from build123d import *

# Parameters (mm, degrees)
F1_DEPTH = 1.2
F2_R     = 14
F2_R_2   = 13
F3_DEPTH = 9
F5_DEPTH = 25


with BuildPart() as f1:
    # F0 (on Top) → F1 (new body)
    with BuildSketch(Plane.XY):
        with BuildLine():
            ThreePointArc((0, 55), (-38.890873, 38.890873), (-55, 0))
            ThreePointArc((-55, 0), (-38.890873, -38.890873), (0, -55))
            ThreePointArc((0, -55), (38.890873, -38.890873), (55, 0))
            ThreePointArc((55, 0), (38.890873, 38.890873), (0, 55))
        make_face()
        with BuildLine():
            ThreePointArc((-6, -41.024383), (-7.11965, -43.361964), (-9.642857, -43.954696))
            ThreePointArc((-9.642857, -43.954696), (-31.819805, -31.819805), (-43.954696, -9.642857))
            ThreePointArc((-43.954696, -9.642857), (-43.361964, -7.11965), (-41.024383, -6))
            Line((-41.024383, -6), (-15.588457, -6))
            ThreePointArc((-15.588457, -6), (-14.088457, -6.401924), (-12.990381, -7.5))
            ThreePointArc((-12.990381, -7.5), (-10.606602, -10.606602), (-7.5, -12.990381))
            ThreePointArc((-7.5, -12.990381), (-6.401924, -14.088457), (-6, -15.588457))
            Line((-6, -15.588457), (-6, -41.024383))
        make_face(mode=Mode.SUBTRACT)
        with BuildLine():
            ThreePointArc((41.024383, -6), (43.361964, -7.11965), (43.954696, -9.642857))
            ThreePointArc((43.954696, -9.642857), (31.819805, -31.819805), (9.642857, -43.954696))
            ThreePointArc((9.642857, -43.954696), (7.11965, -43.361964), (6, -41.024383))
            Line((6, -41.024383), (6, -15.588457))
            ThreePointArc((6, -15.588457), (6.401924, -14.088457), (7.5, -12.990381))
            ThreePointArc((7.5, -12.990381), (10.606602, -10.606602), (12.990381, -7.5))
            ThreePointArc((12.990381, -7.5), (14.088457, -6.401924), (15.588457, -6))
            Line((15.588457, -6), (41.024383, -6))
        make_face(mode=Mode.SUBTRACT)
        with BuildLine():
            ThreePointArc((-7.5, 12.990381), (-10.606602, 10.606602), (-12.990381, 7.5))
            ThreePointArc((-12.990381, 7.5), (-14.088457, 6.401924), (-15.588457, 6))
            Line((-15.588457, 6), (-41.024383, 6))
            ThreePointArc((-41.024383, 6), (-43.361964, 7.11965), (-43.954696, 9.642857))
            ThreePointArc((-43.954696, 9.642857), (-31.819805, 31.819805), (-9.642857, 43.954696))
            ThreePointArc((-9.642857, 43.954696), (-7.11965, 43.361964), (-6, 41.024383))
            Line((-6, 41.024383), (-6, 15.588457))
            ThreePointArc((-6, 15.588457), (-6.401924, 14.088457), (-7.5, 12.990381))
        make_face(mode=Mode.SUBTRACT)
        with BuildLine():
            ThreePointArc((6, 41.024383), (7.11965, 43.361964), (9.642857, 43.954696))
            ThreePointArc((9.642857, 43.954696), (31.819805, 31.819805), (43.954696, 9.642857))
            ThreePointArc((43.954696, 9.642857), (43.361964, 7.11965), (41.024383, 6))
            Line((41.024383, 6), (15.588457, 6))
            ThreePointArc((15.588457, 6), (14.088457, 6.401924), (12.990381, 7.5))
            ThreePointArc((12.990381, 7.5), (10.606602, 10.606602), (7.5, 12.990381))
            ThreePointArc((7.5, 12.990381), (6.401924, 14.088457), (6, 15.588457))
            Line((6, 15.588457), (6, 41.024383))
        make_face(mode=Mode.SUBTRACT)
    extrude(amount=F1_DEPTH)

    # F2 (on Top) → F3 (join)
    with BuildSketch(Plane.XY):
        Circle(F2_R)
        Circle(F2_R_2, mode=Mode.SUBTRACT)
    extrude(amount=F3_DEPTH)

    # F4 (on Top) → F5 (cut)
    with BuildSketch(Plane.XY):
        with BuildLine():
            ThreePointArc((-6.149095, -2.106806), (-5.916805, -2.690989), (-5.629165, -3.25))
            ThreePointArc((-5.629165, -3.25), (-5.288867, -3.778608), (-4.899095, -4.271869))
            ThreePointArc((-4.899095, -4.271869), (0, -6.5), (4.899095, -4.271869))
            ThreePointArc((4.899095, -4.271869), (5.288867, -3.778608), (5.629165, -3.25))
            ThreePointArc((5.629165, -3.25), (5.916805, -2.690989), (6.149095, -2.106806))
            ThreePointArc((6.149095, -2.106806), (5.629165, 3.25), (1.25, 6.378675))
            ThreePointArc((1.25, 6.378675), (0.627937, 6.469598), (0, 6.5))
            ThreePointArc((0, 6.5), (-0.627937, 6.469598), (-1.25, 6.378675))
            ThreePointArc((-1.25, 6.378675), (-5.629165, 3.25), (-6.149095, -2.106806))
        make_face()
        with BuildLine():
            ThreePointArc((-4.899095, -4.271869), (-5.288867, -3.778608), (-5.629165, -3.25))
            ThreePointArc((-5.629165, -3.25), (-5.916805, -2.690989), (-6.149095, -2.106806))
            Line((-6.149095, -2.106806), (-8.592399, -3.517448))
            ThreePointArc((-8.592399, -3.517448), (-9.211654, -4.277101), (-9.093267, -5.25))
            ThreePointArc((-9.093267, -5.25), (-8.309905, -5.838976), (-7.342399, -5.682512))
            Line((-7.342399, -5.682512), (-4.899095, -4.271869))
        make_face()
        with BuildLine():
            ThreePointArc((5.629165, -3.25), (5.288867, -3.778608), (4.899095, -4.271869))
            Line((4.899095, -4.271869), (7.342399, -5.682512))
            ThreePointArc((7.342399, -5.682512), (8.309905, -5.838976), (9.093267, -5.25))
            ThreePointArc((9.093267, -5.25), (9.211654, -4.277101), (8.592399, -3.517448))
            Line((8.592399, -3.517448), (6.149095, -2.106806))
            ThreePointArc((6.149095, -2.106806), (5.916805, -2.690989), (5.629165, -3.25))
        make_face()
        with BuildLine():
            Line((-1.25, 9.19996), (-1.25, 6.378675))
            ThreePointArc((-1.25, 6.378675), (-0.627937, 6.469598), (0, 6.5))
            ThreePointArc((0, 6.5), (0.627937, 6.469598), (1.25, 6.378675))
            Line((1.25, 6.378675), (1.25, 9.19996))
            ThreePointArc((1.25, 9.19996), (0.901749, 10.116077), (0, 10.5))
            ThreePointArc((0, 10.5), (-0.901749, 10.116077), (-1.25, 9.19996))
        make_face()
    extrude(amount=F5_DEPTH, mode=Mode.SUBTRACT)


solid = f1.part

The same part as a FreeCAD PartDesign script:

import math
import FreeCAD as App
import Part
import Sketcher
from FreeCAD import Vector
Q = App.Units.Quantity

doc = App.newDocument("Part")
body = doc.addObject("PartDesign::Body", "Body")

# Sketch on XY plane
sketch1 = body.newObject("Sketcher::SketchObject", "Sketch")
sketch1.AttachmentSupport = (doc.getObject("XY_Plane"), [""])
sketch1.MapMode = "FlatFace"
sketch1.addGeometry([
    Part.ArcOfCircle(Part.Circle(Vector(0, 0, 0), Vector(0, 0, 1), 55), math.radians(90), math.radians(180)),  # 0
    Part.ArcOfCircle(Part.Circle(Vector(0, 0, 0), Vector(0, 0, 1), 55), math.radians(180), math.radians(270)),  # 1
    Part.ArcOfCircle(Part.Circle(Vector(0, 0, 0), Vector(0, 0, 1), 55), math.radians(-90), math.radians(0)),  # 2
    Part.ArcOfCircle(Part.Circle(Vector(0, 0, 0), Vector(0, 0, 1), 55), math.radians(0), math.radians(90)),  # 3
    Part.LineSegment(Vector(-6, -15.588457, 0), Vector(-6, -41.024383, 0)),  # 4
    Part.ArcOfCircle(Part.Circle(Vector(-9, -41.024383, 0), Vector(0, 0, 1), 3), math.radians(-102.373633), math.radians(0.000008)),  # 5
    Part.ArcOfCircle(Part.Circle(Vector(0.000001, 0.000001, 0), Vector(0, 0, 1), 45.000001), math.radians(-167.626375), math.radians(-102.373625)),  # 6
    Part.ArcOfCircle(Part.Circle(Vector(-41.024383, -9, 0), Vector(0, 0, 1), 3), math.radians(89.999992), math.radians(192.373633)),  # 7
    Part.LineSegment(Vector(-41.024383, -6, 0), Vector(-15.588457, -6, 0)),  # 8
    Part.ArcOfCircle(Part.Circle(Vector(-15.588458, -9.000001, 0), Vector(0, 0, 1), 3.000001), math.radians(30.000006), math.radians(89.99999)),  # 9
    Part.ArcOfCircle(Part.Circle(Vector(-0.000009, -0.000009, 0), Vector(0, 0, 1), 14.999987), math.radians(-150.000013), math.radians(-119.999987)),  # 10
    Part.ArcOfCircle(Part.Circle(Vector(-9.000001, -15.588458, 0), Vector(0, 0, 1), 3.000001), math.radians(0.00001), math.radians(59.999994)),  # 11
    Part.LineSegment(Vector(15.588457, -6, 0), Vector(41.024383, -6, 0)),  # 12
    Part.ArcOfCircle(Part.Circle(Vector(41.024383, -9, 0), Vector(0, 0, 1), 3), math.radians(-12.373633), math.radians(90.000008)),  # 13
    Part.ArcOfCircle(Part.Circle(Vector(-0.000001, 0.000001, 0), Vector(0, 0, 1), 45.000001), math.radians(-77.626375), math.radians(-12.373625)),  # 14
    Part.ArcOfCircle(Part.Circle(Vector(9, -41.024383, 0), Vector(0, 0, 1), 3), math.radians(179.999992), math.radians(282.373633)),  # 15
    Part.LineSegment(Vector(6, -41.024383, 0), Vector(6, -15.588457, 0)),  # 16
    Part.ArcOfCircle(Part.Circle(Vector(9.000001, -15.588458, 0), Vector(0, 0, 1), 3.000001), math.radians(120.000006), math.radians(179.99999)),  # 17
    Part.ArcOfCircle(Part.Circle(Vector(0.000009, -0.000009, 0), Vector(0, 0, 1), 14.999987), math.radians(-60.000013), math.radians(-29.999987)),  # 18
    Part.ArcOfCircle(Part.Circle(Vector(15.588458, -9.000001, 0), Vector(0, 0, 1), 3.000001), math.radians(90.00001), math.radians(149.999994)),  # 19
    Part.ArcOfCircle(Part.Circle(Vector(-9.000001, 15.588458, 0), Vector(0, 0, 1), 3.000001), math.radians(-59.999994), math.radians(-0.00001)),  # 20
    Part.ArcOfCircle(Part.Circle(Vector(-0.000009, 0.000009, 0), Vector(0, 0, 1), 14.999987), math.radians(119.999987), math.radians(150.000013)),  # 21
    Part.ArcOfCircle(Part.Circle(Vector(-15.588458, 9.000001, 0), Vector(0, 0, 1), 3.000001), math.radians(-89.99999), math.radians(-30.000006)),  # 22
    Part.LineSegment(Vector(-15.588457, 6, 0), Vector(-41.024383, 6, 0)),  # 23
    Part.ArcOfCircle(Part.Circle(Vector(-41.024383, 9, 0), Vector(0, 0, 1), 3), math.radians(167.626367), math.radians(270.000008)),  # 24
    Part.ArcOfCircle(Part.Circle(Vector(0.000001, -0.000001, 0), Vector(0, 0, 1), 45.000001), math.radians(102.373625), math.radians(167.626375)),  # 25
    Part.ArcOfCircle(Part.Circle(Vector(-9, 41.024383, 0), Vector(0, 0, 1), 3), math.radians(-0.000008), math.radians(102.373633)),  # 26
    Part.LineSegment(Vector(-6, 41.024383, 0), Vector(-6, 15.588457, 0)),  # 27
    Part.LineSegment(Vector(6, 15.588457, 0), Vector(6, 41.024383, 0)),  # 28
    Part.ArcOfCircle(Part.Circle(Vector(9, 41.024383, 0), Vector(0, 0, 1), 3), math.radians(77.626367), math.radians(180.000008)),  # 29
    Part.ArcOfCircle(Part.Circle(Vector(-0.000001, -0.000001, 0), Vector(0, 0, 1), 45.000001), math.radians(12.373625), math.radians(77.626375)),  # 30
    Part.ArcOfCircle(Part.Circle(Vector(41.024383, 9, 0), Vector(0, 0, 1), 3), math.radians(-90.000008), math.radians(12.373633)),  # 31
    Part.LineSegment(Vector(41.024383, 6, 0), Vector(15.588457, 6, 0)),  # 32
    Part.ArcOfCircle(Part.Circle(Vector(15.588458, 9.000001, 0), Vector(0, 0, 1), 3.000001), math.radians(-149.999994), math.radians(-90.00001)),  # 33
    Part.ArcOfCircle(Part.Circle(Vector(0.000009, 0.000009, 0), Vector(0, 0, 1), 14.999987), math.radians(29.999987), math.radians(60.000013)),  # 34
    Part.ArcOfCircle(Part.Circle(Vector(9.000001, 15.588458, 0), Vector(0, 0, 1), 3.000001), math.radians(-179.99999), math.radians(-120.000006)),  # 35
], False)
sketch1.addConstraint([
    Sketcher.Constraint("Tangent", 0, 2, 1, 1),
    Sketcher.Constraint("Tangent", 1, 2, 2, 1),
    Sketcher.Constraint("Tangent", 2, 2, 3, 1),
    Sketcher.Constraint("Tangent", 3, 2, 0, 1),
    Sketcher.Constraint("Tangent", 4, 2, 5, 2),
    Sketcher.Constraint("Tangent", 5, 1, 6, 2),
    Sketcher.Constraint("Tangent", 6, 1, 7, 2),
    Sketcher.Constraint("Tangent", 7, 1, 8, 1),
    Sketcher.Constraint("Tangent", 8, 2, 9, 2),
    Sketcher.Constraint("Tangent", 9, 1, 10, 1),
    Sketcher.Constraint("Tangent", 10, 2, 11, 2),
    Sketcher.Constraint("Tangent", 11, 1, 4, 1),
    Sketcher.Constraint("Tangent", 12, 2, 13, 2),
    Sketcher.Constraint("Tangent", 13, 1, 14, 2),
    Sketcher.Constraint("Tangent", 14, 1, 15, 2),
    Sketcher.Constraint("Tangent", 15, 1, 16, 1),
    Sketcher.Constraint("Tangent", 16, 2, 17, 2),
    Sketcher.Constraint("Tangent", 17, 1, 18, 1),
    Sketcher.Constraint("Tangent", 18, 2, 19, 2),
    Sketcher.Constraint("Tangent", 19, 1, 12, 1),
    Sketcher.Constraint("Tangent", 20, 1, 21, 1),
    Sketcher.Constraint("Tangent", 21, 2, 22, 2),
    Sketcher.Constraint("Tangent", 22, 1, 23, 1),
    Sketcher.Constraint("Tangent", 23, 2, 24, 2),
    Sketcher.Constraint("Tangent", 24, 1, 25, 2),
    Sketcher.Constraint("Tangent", 25, 1, 26, 2),
    Sketcher.Constraint("Tangent", 26, 1, 27, 1),
    Sketcher.Constraint("Tangent", 27, 2, 20, 2),
    Sketcher.Constraint("Tangent", 28, 2, 29, 2),
    Sketcher.Constraint("Tangent", 29, 1, 30, 2),
    Sketcher.Constraint("Tangent", 30, 1, 31, 2),
    Sketcher.Constraint("Tangent", 31, 1, 32, 1),
    Sketcher.Constraint("Tangent", 32, 2, 33, 2),
    Sketcher.Constraint("Tangent", 33, 1, 34, 1),
    Sketcher.Constraint("Tangent", 34, 2, 35, 2),
    Sketcher.Constraint("Tangent", 35, 1, 28, 1),
    Sketcher.Constraint("Vertical", 4),
    Sketcher.Constraint("Horizontal", 8),
    Sketcher.Constraint("Horizontal", 12),
    Sketcher.Constraint("Vertical", 16),
    Sketcher.Constraint("Horizontal", 23),
    Sketcher.Constraint("Vertical", 27),
    Sketcher.Constraint("Vertical", 28),
    Sketcher.Constraint("Horizontal", 32),
    Sketcher.Constraint("Coincident", 0, 3, -1, 1),
    Sketcher.Constraint("Coincident", 6, 3, -1, 1),
    Sketcher.Constraint("Coincident", 14, 3, -1, 1),
    Sketcher.Constraint("Coincident", 25, 3, -1, 1),
    Sketcher.Constraint("Coincident", 30, 3, -1, 1),
    Sketcher.Constraint("Equal", 0, 1),
    Sketcher.Constraint("Equal", 5, 7),
    Sketcher.Constraint("Equal", 7, 9),
    Sketcher.Constraint("Equal", 9, 11),
    Sketcher.Constraint("Equal", 11, 13),
    Sketcher.Constraint("Equal", 6, 14),
    Sketcher.Constraint("Equal", 13, 15),
    Sketcher.Constraint("Equal", 15, 17),
    Sketcher.Constraint("Equal", 10, 18),
    Sketcher.Constraint("Equal", 17, 19),
    Sketcher.Constraint("Equal", 19, 20),
    Sketcher.Constraint("Equal", 18, 21),
    Sketcher.Constraint("Equal", 20, 22),
    Sketcher.Constraint("Equal", 22, 24),
    Sketcher.Constraint("Equal", 14, 25),
    Sketcher.Constraint("Equal", 24, 26),
    Sketcher.Constraint("Equal", 26, 29),
    Sketcher.Constraint("Equal", 25, 30),
    Sketcher.Constraint("Equal", 29, 31),
    Sketcher.Constraint("Equal", 31, 33),
    Sketcher.Constraint("Equal", 21, 34),
    Sketcher.Constraint("Equal", 33, 35),
    Sketcher.Constraint("Symmetric", 17, 3, 20, 3, -1, 1),
    Sketcher.Constraint("Symmetric", 19, 3, 22, 3, -1, 1),
    Sketcher.Constraint("Symmetric", 9, 3, 33, 3, -1, 1),
    Sketcher.Constraint("Symmetric", 11, 3, 35, 3, -1, 1),
    Sketcher.Constraint("Symmetric", 11, 3, 17, 3, -2),
    Sketcher.Constraint("Symmetric", 9, 3, 19, 3, -2),
    Sketcher.Constraint("PointOnObject", 0, 2, -1),
    Sketcher.Constraint("PointOnObject", 1, 2, -2),
    Sketcher.Constraint("PointOnObject", 2, 2, -1),
    Sketcher.Constraint("PointOnObject", 3, 2, -2),
    Sketcher.Constraint("Equal", 32, 4),
    Sketcher.Constraint("Radius", 0, 55.0),
    Sketcher.Constraint("Radius", 5, 3.0),
    Sketcher.Constraint("Radius", 6, 45.000001),
    Sketcher.Constraint("DistanceX", 5, 3, -1, 1, 9.0),
    Sketcher.Constraint("DistanceY", 7, 3, -1, 1, 9.0),
    Sketcher.Constraint("DistanceY", 9, 1, -1, 1, 7.5),
    Sketcher.Constraint("Radius", 10, 14.999987),
])
pad1 = body.newObject("PartDesign::Pad", "Pad")
pad1.Profile = sketch1
pad1.Length = 1.2

# Sketch on XY plane
sketch2 = body.newObject("Sketcher::SketchObject", "Sketch001")
sketch2.AttachmentSupport = (doc.getObject("XY_Plane"), [""])
sketch2.MapMode = "FlatFace"
sketch2.addGeometry([
    Part.Circle(Vector(0, 0, 0), Vector(0, 0, 1), 14),
    Part.Circle(Vector(0, 0, 0), Vector(0, 0, 1), 13),
], False)
sketch2.addConstraint([
    Sketcher.Constraint("Coincident", 0, 3, -1, 1),
    Sketcher.Constraint("Coincident", 1, 3, -1, 1),
    Sketcher.Constraint("Diameter", 0, 28.0),
    Sketcher.Constraint("Diameter", 1, 26.0),
])
pad2 = body.newObject("PartDesign::Pad", "Pad001")
pad2.Profile = sketch2
pad2.Length = 9

# Sketch on XY plane
sketch3 = body.newObject("Sketcher::SketchObject", "Sketch002")
sketch3.AttachmentSupport = (doc.getObject("XY_Plane"), [""])
sketch3.MapMode = "FlatFace"
sketch3.addGeometry([
    Part.ArcOfCircle(Part.Circle(Vector(0, -0.000001, 0), Vector(0, 0, 1), 6.499999), math.radians(-138.912519), math.radians(-41.087481)),  # 0
    Part.LineSegment(Vector(4.899095, -4.271869, 0), Vector(7.342399, -5.682512, 0)),  # 1
    Part.ArcOfCircle(Part.Circle(Vector(8.009901, -4.624519, 0), Vector(0, 0, 1), 1.250963), math.radians(-122.248379), math.radians(-29.999978)),  # 2
    Part.ArcOfCircle(Part.Circle(Vector(8.009901, -4.624518, 0), Vector(0, 0, 1), 1.250963), math.radians(-30.000002), math.radians(62.248385)),  # 3
    Part.LineSegment(Vector(8.592399, -3.517448, 0), Vector(6.149095, -2.106806, 0)),  # 4
    Part.ArcOfCircle(Part.Circle(Vector(0, 0, 0), Vector(0, 0, 1), 6.5), math.radians(-18.91251), math.radians(78.912513)),  # 5
    Part.LineSegment(Vector(1.25, 6.378675, 0), Vector(1.25, 9.19996, 0)),  # 6
    Part.ArcOfCircle(Part.Circle(Vector(0.000001, 9.249038, 0), Vector(0, 0, 1), 1.250962), math.radians(-2.248417), math.radians(90.00005)),  # 7
    Part.ArcOfCircle(Part.Circle(Vector(-0.000001, 9.249038, 0), Vector(0, 0, 1), 1.250962), math.radians(89.99995), math.radians(182.248417)),  # 8
    Part.LineSegment(Vector(-1.25, 9.19996, 0), Vector(-1.25, 6.378675, 0)),  # 9
    Part.ArcOfCircle(Part.Circle(Vector(0, 0, 0), Vector(0, 0, 1), 6.5), math.radians(101.087487), math.radians(198.91251)),  # 10
    Part.LineSegment(Vector(-6.149095, -2.106806, 0), Vector(-8.592399, -3.517448, 0)),  # 11
    Part.ArcOfCircle(Part.Circle(Vector(-8.009901, -4.624518, 0), Vector(0, 0, 1), 1.250963), math.radians(117.751615), math.radians(210.000002)),  # 12
    Part.ArcOfCircle(Part.Circle(Vector(-8.009901, -4.624519, 0), Vector(0, 0, 1), 1.250963), math.radians(-150.000022), math.radians(-57.751621)),  # 13
    Part.LineSegment(Vector(-7.342399, -5.682512, 0), Vector(-4.899095, -4.271869, 0)),  # 14
], False)
sketch3.addConstraint([
    Sketcher.Constraint("Coincident", 0, 2, 1, 1),
    Sketcher.Constraint("Coincident", 1, 2, 2, 1),
    Sketcher.Constraint("Tangent", 2, 2, 3, 1),
    Sketcher.Constraint("Coincident", 3, 2, 4, 1),
    Sketcher.Constraint("Coincident", 4, 2, 5, 1),
    Sketcher.Constraint("Coincident", 5, 2, 6, 1),
    Sketcher.Constraint("Coincident", 6, 2, 7, 1),
    Sketcher.Constraint("Tangent", 7, 2, 8, 1),
    Sketcher.Constraint("Coincident", 8, 2, 9, 1),
    Sketcher.Constraint("Coincident", 9, 2, 10, 1),
    Sketcher.Constraint("Coincident", 10, 2, 11, 1),
    Sketcher.Constraint("Coincident", 11, 2, 12, 1),
    Sketcher.Constraint("Tangent", 12, 2, 13, 1),
    Sketcher.Constraint("Coincident", 13, 2, 14, 1),
    Sketcher.Constraint("Coincident", 14, 2, 0, 1),
    Sketcher.Constraint("Vertical", 6),
    Sketcher.Constraint("Vertical", 9),
    Sketcher.Constraint("Coincident", 0, 3, -1, 1),
    Sketcher.Constraint("Coincident", 5, 3, -1, 1),
    Sketcher.Constraint("Coincident", 10, 3, -1, 1),
    Sketcher.Constraint("Equal", 2, 3),
    Sketcher.Constraint("Equal", 0, 5),
    Sketcher.Constraint("Equal", 3, 7),
    Sketcher.Constraint("Equal", 7, 8),
    Sketcher.Constraint("Equal", 5, 10),
    Sketcher.Constraint("Equal", 8, 12),
    Sketcher.Constraint("Equal", 12, 13),
    Sketcher.Constraint("Symmetric", 2, 3, 12, 3, -2),
    Sketcher.Constraint("Symmetric", 6, 2, 8, 2, -2),
    Sketcher.Constraint("PointOnObject", 7, 2, -2),
    Sketcher.Constraint("Parallel", 1, 4),
    Sketcher.Constraint("Parallel", 11, 14),
    Sketcher.Constraint("Horizontal", 4, 2, 10, 2),
    Sketcher.Constraint("Horizontal", 3, 2, 11, 2),
    Sketcher.Constraint("Horizontal", 2, 2, 12, 2),
    Sketcher.Constraint("Horizontal", 1, 2, 13, 2),
    Sketcher.Constraint("Equal", 1, 4),
    Sketcher.Constraint("Radius", 0, 6.499999),
    Sketcher.Constraint("Angle", 1, Q("-30.000014 deg")),
    Sketcher.Constraint("DistanceY", -1, 1, 7, 2, 10.5),
    Sketcher.Constraint("DistanceX", 8, 2, 6, 2, 2.5),
    Sketcher.Constraint("DistanceY", 2, 2, -1, 1, 5.25),
    Sketcher.Constraint("DistanceX", 1, 2, 3, 2, 1.25),
    Sketcher.Constraint("Radius", 2, 1.250963),
    Sketcher.Constraint("DistanceX", -1, 1, 2, 3, 8.009901),
    Sketcher.Constraint("DistanceX", -1, 1, 1, 2, 7.342399),
])
pocket1 = body.newObject("PartDesign::Pocket", "Pocket")
pocket1.Profile = sketch3
pocket1.Length = 25
pocket1.Reversed = True

doc.recompute()
